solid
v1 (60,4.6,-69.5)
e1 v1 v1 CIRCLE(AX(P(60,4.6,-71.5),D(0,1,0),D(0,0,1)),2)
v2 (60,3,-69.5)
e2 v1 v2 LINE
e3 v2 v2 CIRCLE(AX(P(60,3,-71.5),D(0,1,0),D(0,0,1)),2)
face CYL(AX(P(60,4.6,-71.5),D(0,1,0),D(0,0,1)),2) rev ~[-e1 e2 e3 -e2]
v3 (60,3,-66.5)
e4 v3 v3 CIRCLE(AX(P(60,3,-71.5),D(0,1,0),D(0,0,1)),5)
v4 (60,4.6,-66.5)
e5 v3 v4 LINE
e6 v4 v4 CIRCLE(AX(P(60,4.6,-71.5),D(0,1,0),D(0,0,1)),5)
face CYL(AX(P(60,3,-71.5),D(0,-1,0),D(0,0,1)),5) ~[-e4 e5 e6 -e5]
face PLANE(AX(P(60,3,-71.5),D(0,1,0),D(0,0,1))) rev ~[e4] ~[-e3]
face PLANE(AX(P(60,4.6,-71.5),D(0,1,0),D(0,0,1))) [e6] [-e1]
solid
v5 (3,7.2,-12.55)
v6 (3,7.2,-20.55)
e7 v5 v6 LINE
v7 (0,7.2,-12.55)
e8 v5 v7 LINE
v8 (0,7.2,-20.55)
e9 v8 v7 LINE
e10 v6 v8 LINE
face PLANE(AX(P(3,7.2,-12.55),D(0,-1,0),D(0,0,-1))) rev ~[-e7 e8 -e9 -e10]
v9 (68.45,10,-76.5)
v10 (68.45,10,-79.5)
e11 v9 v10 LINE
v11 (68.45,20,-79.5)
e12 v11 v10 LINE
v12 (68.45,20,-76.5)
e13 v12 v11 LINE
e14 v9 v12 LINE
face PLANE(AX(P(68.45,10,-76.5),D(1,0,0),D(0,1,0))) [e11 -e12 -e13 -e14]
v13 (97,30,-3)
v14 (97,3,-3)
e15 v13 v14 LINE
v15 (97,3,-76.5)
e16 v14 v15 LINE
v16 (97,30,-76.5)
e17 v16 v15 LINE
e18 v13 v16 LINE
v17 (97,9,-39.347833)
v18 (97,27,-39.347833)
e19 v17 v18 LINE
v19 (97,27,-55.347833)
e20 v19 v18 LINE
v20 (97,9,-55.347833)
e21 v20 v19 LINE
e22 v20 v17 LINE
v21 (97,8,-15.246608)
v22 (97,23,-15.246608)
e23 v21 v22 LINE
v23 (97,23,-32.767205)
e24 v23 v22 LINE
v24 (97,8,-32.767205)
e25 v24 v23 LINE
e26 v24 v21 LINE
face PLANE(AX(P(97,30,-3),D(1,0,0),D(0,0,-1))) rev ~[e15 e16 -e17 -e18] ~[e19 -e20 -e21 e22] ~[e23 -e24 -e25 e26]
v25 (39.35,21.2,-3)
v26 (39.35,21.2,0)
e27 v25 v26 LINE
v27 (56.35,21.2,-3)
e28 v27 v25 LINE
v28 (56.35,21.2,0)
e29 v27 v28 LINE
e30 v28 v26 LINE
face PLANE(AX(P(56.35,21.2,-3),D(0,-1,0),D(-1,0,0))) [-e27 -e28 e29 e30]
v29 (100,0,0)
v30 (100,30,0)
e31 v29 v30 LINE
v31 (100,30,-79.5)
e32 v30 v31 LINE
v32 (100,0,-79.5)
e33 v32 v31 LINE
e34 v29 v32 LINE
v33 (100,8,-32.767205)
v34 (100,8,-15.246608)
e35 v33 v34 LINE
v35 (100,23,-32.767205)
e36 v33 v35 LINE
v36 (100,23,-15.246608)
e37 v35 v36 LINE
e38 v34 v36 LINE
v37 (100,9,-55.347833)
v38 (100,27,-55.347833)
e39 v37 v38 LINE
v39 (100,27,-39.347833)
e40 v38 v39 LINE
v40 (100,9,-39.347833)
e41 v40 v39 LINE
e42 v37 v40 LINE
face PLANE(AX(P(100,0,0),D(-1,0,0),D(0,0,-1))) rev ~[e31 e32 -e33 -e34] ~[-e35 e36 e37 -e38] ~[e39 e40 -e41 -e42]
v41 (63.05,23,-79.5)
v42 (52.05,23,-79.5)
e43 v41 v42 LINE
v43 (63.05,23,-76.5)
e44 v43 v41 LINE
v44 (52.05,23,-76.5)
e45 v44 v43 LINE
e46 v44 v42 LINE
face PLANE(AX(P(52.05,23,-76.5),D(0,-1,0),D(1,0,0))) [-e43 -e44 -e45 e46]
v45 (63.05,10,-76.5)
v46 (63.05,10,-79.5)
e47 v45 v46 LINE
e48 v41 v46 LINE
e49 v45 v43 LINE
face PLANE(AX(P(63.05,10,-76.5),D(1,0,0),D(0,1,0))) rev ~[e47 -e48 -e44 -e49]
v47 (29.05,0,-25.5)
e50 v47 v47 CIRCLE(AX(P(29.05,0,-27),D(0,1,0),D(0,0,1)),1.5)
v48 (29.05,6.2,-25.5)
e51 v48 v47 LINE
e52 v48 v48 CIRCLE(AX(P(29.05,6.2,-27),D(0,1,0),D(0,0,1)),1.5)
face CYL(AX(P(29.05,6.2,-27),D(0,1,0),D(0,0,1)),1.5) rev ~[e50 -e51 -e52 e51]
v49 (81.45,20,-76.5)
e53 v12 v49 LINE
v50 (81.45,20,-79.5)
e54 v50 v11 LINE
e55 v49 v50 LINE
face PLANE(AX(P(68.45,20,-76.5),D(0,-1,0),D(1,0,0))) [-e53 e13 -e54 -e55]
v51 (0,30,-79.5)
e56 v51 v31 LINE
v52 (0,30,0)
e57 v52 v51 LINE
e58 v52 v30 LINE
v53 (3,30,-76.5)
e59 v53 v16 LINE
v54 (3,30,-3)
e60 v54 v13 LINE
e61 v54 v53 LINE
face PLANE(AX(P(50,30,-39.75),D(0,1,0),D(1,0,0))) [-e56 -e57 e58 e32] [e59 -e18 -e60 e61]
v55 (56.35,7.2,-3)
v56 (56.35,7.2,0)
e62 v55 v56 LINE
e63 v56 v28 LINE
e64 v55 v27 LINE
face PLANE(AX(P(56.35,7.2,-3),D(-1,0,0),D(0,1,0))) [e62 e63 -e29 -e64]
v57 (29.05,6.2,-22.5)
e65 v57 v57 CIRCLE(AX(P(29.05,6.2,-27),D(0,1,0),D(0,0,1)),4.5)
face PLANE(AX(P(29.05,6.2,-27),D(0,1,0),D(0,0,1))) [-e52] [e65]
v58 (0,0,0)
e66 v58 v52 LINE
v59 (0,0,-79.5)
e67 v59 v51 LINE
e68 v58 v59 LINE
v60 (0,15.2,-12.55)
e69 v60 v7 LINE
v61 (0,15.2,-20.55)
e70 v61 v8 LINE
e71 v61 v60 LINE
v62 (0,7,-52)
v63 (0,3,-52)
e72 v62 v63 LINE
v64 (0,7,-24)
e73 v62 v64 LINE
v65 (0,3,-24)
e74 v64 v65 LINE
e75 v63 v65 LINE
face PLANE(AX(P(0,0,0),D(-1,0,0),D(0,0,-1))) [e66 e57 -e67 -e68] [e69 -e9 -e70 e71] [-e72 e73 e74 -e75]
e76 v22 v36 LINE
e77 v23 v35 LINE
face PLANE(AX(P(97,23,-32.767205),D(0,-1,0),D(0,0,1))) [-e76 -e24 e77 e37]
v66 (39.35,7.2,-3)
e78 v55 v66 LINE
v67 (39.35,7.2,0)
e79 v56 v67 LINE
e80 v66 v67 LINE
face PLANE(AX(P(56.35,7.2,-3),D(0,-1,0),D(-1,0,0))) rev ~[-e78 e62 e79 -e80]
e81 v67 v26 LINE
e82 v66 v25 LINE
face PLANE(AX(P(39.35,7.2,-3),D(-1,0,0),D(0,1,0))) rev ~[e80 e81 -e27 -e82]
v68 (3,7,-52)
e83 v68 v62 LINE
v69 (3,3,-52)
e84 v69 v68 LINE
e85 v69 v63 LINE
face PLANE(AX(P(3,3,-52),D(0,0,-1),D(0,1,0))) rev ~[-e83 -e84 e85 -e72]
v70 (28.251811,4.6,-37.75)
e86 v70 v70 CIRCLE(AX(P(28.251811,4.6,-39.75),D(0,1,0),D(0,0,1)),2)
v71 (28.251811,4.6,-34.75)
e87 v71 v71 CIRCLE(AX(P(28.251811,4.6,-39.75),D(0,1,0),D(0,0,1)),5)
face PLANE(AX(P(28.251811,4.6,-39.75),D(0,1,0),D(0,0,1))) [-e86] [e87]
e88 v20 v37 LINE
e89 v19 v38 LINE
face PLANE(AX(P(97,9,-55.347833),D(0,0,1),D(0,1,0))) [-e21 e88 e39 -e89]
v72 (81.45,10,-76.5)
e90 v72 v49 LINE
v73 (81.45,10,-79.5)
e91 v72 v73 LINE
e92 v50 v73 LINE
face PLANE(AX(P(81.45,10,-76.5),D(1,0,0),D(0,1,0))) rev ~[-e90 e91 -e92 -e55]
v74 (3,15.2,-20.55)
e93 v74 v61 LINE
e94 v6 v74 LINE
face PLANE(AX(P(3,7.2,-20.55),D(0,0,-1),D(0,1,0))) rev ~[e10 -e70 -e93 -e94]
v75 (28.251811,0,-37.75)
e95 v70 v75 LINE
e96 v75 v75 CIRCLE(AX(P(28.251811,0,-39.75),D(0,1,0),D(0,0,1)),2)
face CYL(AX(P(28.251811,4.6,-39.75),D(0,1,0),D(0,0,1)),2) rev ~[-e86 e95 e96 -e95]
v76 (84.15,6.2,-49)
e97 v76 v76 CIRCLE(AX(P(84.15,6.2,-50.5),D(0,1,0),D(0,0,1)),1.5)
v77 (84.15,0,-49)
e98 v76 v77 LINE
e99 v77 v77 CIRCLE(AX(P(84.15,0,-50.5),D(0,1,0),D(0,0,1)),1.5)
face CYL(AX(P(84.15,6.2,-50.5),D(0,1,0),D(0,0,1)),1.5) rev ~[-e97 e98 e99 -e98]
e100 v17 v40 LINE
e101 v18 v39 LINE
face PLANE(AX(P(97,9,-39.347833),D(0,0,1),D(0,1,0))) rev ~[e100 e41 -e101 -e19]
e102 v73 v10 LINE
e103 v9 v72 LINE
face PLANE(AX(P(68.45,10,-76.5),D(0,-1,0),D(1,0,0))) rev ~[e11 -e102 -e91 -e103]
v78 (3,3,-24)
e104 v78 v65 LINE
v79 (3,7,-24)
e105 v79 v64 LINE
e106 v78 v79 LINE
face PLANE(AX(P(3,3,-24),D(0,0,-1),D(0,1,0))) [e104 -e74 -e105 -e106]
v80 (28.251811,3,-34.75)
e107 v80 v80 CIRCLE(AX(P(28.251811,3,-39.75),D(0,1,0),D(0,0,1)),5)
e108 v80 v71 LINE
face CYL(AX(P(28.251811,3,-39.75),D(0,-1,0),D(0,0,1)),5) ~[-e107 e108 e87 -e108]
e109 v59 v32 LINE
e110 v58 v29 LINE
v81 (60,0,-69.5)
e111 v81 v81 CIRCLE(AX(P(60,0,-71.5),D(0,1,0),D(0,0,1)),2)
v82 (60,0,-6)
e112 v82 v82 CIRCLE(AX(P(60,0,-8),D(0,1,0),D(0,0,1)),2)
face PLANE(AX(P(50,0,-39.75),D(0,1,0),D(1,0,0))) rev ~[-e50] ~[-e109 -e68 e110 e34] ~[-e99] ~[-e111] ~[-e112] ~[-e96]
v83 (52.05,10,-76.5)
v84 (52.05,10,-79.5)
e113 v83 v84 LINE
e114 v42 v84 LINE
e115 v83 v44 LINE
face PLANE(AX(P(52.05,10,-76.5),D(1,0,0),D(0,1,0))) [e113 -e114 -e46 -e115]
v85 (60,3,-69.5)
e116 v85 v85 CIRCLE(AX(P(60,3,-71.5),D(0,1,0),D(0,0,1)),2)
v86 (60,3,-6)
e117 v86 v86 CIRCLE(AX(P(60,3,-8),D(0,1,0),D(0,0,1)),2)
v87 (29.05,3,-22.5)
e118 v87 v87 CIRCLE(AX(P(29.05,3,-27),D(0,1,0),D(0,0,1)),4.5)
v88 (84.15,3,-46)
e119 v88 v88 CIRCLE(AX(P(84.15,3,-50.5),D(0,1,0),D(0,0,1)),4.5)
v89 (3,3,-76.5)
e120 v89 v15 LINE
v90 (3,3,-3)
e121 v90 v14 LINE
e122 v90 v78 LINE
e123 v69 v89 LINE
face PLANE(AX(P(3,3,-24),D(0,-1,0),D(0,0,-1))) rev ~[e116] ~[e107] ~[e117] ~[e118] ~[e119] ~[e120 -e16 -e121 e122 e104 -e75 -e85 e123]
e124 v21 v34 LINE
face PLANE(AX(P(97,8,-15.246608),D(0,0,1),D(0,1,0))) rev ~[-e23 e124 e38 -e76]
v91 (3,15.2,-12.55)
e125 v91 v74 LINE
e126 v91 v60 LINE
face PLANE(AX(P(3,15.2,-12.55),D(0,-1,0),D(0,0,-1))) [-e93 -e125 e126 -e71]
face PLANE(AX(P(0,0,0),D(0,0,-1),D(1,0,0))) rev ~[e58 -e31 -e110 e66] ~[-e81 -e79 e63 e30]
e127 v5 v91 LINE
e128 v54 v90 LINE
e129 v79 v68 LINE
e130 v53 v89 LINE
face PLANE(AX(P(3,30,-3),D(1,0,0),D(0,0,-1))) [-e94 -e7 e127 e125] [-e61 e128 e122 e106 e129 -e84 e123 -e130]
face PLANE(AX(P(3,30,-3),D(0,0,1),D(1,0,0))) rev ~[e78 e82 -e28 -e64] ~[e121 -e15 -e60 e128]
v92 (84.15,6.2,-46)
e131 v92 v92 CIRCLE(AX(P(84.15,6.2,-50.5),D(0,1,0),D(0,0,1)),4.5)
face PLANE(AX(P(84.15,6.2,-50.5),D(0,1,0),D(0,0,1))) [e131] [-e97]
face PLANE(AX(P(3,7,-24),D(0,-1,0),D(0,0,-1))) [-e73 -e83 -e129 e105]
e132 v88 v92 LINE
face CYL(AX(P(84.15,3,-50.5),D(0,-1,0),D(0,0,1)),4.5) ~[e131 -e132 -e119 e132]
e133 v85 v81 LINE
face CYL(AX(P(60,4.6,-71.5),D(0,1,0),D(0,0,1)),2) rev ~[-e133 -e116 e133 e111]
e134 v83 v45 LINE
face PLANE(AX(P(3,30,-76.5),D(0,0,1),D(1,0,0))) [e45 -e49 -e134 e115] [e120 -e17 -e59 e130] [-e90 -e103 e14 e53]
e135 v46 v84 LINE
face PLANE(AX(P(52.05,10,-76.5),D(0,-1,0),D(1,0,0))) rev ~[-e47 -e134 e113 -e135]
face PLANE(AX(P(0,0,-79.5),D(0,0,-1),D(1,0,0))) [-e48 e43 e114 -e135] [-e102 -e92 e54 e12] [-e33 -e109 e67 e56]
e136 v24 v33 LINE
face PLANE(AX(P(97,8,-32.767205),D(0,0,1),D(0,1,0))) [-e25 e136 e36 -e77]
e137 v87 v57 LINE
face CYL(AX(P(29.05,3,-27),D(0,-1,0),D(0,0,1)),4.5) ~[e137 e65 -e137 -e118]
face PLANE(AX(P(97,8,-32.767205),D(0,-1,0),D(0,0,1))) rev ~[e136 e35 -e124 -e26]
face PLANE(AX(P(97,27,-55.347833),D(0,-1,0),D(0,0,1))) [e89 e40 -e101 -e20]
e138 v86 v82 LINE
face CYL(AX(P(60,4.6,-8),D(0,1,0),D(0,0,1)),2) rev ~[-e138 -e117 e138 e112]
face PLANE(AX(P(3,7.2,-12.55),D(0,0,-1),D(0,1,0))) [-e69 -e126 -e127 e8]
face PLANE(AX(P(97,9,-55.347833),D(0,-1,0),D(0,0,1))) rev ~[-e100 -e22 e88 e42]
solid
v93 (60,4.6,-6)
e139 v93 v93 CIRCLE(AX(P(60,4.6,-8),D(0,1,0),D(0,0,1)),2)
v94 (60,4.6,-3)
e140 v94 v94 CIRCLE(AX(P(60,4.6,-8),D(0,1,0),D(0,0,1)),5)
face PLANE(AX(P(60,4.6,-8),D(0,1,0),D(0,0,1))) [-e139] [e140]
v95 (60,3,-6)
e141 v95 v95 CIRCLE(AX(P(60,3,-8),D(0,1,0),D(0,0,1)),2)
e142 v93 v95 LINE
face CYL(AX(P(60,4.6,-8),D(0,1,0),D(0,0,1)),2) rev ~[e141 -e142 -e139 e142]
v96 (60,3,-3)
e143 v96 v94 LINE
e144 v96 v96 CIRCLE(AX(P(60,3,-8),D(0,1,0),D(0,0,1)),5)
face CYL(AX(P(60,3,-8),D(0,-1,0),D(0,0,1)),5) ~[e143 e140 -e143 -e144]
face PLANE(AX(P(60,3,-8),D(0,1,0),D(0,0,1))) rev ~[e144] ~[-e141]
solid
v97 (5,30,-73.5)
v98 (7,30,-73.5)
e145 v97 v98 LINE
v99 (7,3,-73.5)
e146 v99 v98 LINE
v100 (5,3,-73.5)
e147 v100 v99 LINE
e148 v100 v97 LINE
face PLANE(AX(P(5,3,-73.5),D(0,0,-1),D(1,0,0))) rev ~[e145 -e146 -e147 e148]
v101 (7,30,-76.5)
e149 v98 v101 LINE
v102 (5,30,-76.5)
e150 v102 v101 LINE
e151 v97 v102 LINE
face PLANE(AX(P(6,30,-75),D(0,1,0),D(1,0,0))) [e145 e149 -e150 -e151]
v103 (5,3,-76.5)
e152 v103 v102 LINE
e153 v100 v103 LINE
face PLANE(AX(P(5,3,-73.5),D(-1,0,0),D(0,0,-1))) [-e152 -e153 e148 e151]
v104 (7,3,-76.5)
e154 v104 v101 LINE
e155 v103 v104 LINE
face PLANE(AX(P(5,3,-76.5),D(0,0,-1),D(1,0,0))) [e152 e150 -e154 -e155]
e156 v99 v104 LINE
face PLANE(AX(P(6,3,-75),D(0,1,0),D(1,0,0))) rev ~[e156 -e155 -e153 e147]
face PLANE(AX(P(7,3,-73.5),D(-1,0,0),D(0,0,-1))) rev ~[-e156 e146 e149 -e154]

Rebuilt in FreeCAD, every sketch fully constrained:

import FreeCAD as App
import Part
import Sketcher
Q = App.Units.Quantity

doc = App.newDocument("Part")
body = doc.addObject("PartDesign::Body", "Body")

# Sketch on XZ plane
sketch1 = body.newObject("Sketcher::SketchObject", "Sketch")
sketch1.AttachmentSupport = (doc.getObject("XZ_Plane"), [""])
sketch1.MapMode = "FlatFace"
sketch1.addGeometry([
    Part.LineSegment(App.Vector(0, -80, 0), App.Vector(0, 0, 0)),
    Part.LineSegment(App.Vector(0, 0, 0), App.Vector(100, 0, 0)),
    Part.LineSegment(App.Vector(100, 0, 0), App.Vector(100, -80, 0)),
    Part.LineSegment(App.Vector(100, -80, 0), App.Vector(0, -80, 0)),
], False)
sketch1.addConstraint([
    Sketcher.Constraint("Coincident", 0, 2, 1, 1),
    Sketcher.Constraint("Coincident", 1, 2, 2, 1),
    Sketcher.Constraint("Coincident", 2, 2, 3, 1),
    Sketcher.Constraint("Coincident", 3, 2, 0, 1),
    Sketcher.Constraint("Vertical", 0),
    Sketcher.Constraint("Horizontal", 1),
    Sketcher.Constraint("Vertical", 2),
    Sketcher.Constraint("Horizontal", 3),
    Sketcher.Constraint("Coincident", 0, 2, -1, 1),
    Sketcher.Constraint("DistanceX", 1, 1, 1, 2, Q("100 mm")),
    Sketcher.Constraint("DistanceY", 0, 1, 0, 2, Q("79.5 mm")),
])
pad1 = body.newObject("PartDesign::Pad", "Pad")
pad1.Profile = sketch1
pad1.Length = 30
pad1.Reversed = True

# Sketch on XZ plane
sketch2 = body.newObject("Sketcher::SketchObject", "Sketch001")
sketch2.AttachmentSupport = (doc.getObject("XZ_Plane"), [""])
sketch2.MapMode = "FlatFace"
sketch2.AttachmentOffset = App.Placement(App.Vector(0, 0, -30), App.Rotation())
sketch2.addGeometry([
    Part.LineSegment(App.Vector(3, -76, 0), App.Vector(3, -3, 0)),
    Part.LineSegment(App.Vector(3, -3, 0), App.Vector(97, -3, 0)),
    Part.LineSegment(App.Vector(97, -3, 0), App.Vector(97, -76, 0)),
    Part.LineSegment(App.Vector(97, -76, 0), App.Vector(3, -76, 0)),
], False)
sketch2.addConstraint([
    Sketcher.Constraint("Coincident", 0, 2, 1, 1),
    Sketcher.Constraint("Coincident", 1, 2, 2, 1),
    Sketcher.Constraint("Coincident", 2, 2, 3, 1),
    Sketcher.Constraint("Coincident", 3, 2, 0, 1),
    Sketcher.Constraint("Vertical", 0),
    Sketcher.Constraint("Horizontal", 1),
    Sketcher.Constraint("Vertical", 2),
    Sketcher.Constraint("Horizontal", 3),
    Sketcher.Constraint("DistanceX", 1, 1, 1, 2, Q("94 mm")),
    Sketcher.Constraint("DistanceY", 0, 1, 0, 2, Q("73.5 mm")),
    Sketcher.Constraint("DistanceX", -1, 1, 0, 2, Q("3 mm")),
    Sketcher.Constraint("DistanceY", 0, 2, -1, 1, Q("3 mm")),
])
pocket1 = body.newObject("PartDesign::Pocket", "Pocket")
pocket1.Profile = sketch2
pocket1.Length = 27
pocket1.Reversed = True
body2 = doc.addObject("PartDesign::Body", "Body001")

# Sketch on XZ plane
sketch3 = body2.newObject("Sketcher::SketchObject", "Sketch002")
sketch3.AttachmentSupport = (doc.getObject("XZ_Plane001"), [""])
sketch3.MapMode = "FlatFace"
sketch3.AttachmentOffset = App.Placement(App.Vector(0, 0, -3), App.Rotation())
sketch3.addGeometry(Part.Circle(App.Vector(60, -8, 0), App.Vector(0, 0, 1), 5), False)
sketch3.addConstraint([
    Sketcher.Constraint("Diameter", 0, Q("10 mm")),
    Sketcher.Constraint("DistanceX", -1, 1, 0, 3, Q("60 mm")),
    Sketcher.Constraint("DistanceY", 0, 3, -1, 1, Q("8 mm")),
])
pad2 = body2.newObject("PartDesign::Pad", "Pad001")
pad2.Profile = sketch3
pad2.Length = 1.6
pad2.Reversed = True
body3 = doc.addObject("PartDesign::Body", "Body002")

# Sketch on XZ plane
sketch4 = body3.newObject("Sketcher::SketchObject", "Sketch003")
sketch4.AttachmentSupport = (doc.getObject("XZ_Plane002"), [""])
sketch4.MapMode = "FlatFace"
sketch4.AttachmentOffset = App.Placement(App.Vector(0, 0, -3), App.Rotation())
sketch4.addGeometry(Part.Circle(App.Vector(60, -72, 0), App.Vector(0, 0, 1), 5), False)
sketch4.addConstraint([
    Sketcher.Constraint("Diameter", 0, Q("10 mm")),
    Sketcher.Constraint("DistanceX", -1, 1, 0, 3, Q("60 mm")),
    Sketcher.Constraint("DistanceY", 0, 3, -1, 1, Q("71.5 mm")),
])
pad3 = body3.newObject("PartDesign::Pad", "Pad002")
pad3.Profile = sketch4
pad3.Length = 1.6
pad3.Reversed = True
body4 = doc.addObject("PartDesign::Body", "Body003")

# Sketch on XZ plane
sketch5 = body4.newObject("Sketcher::SketchObject", "Sketch004")
sketch5.AttachmentSupport = (doc.getObject("XZ_Plane003"), [""])
sketch5.MapMode = "FlatFace"
sketch5.AttachmentOffset = App.Placement(App.Vector(0, 0, -4.6), App.Rotation())
sketch5.addGeometry(Part.Circle(App.Vector(60, -71.5, 0), App.Vector(0, 0, 1), 2), False)
sketch5.addConstraint([
    Sketcher.Constraint("Diameter", 0, Q("4 mm")),
    Sketcher.Constraint("DistanceX", -1, 1, 0, 3, Q("60 mm")),
    Sketcher.Constraint("DistanceY", 0, 3, -1, 1, Q("71.5 mm")),
])
pad4 = body4.newObject("PartDesign::Pad", "Pad003")
pad4.Profile = sketch5
pad4.Length = 131.251334
doc.recompute()

body5 = doc.addObject("PartDesign::Body", "Body004")
body5.BaseFeature = body4
boolean = body.newObject("PartDesign::Boolean", "Boolean")
boolean.Type = "Cut"
boolean.addObjects([body5])
doc.recompute()

boolean2 = body3.newObject("PartDesign::Boolean", "Boolean001")
boolean2.Type = "Cut"
boolean2.addObjects([body4])
body6 = doc.addObject("PartDesign::Body", "Body005")

# Sketch on XZ plane
sketch6 = body6.newObject("Sketcher::SketchObject", "Sketch005")
sketch6.AttachmentSupport = (doc.getObject("XZ_Plane005"), [""])
sketch6.MapMode = "FlatFace"
sketch6.AttachmentOffset = App.Placement(App.Vector(0, 0, -4.6), App.Rotation())
sketch6.addGeometry(Part.Circle(App.Vector(60, -8, 0), App.Vector(0, 0, 1), 2), False)
sketch6.addConstraint([
    Sketcher.Constraint("Diameter", 0, Q("4 mm")),
    Sketcher.Constraint("DistanceX", -1, 1, 0, 3, Q("60 mm")),
    Sketcher.Constraint("DistanceY", 0, 3, -1, 1, Q("8 mm")),
])
pad5 = body6.newObject("PartDesign::Pad", "Pad004")
pad5.Profile = sketch6
pad5.Length = 131.251334
doc.recompute()

body7 = doc.addObject("PartDesign::Body", "Body006")
body7.BaseFeature = body6
boolean3 = body.newObject("PartDesign::Boolean", "Boolean002")
boolean3.Type = "Cut"
boolean3.addObjects([body7])
doc.recompute()

# Sketch on XZ plane
sketch7 = body.newObject("Sketcher::SketchObject", "Sketch006")
sketch7.AttachmentSupport = (doc.getObject("XZ_Plane"), [""])
sketch7.MapMode = "FlatFace"
sketch7.AttachmentOffset = App.Placement(App.Vector(0, 0, -3), App.Rotation())
sketch7.addGeometry([
    Part.Circle(App.Vector(29.1, -27, 0), App.Vector(0, 0, 1), 4.5),
    Part.Circle(App.Vector(84.2, -50.5, 0), App.Vector(0, 0, 1), 4.5),
], False)
sketch7.addConstraint([
    Sketcher.Constraint("Equal", 0, 1),
    Sketcher.Constraint("Diameter", 0, Q("9 mm")),
    Sketcher.Constraint("DistanceY", 0, 3, -1, 1, Q("27 mm")),
    Sketcher.Constraint("DistanceY", 1, 3, -1, 1, Q("50.5 mm")),
    Sketcher.Constraint("DistanceX", 0, 3, 1, 3, Q("55.1 mm")),
    Sketcher.Constraint("DistanceX", -1, 1, 0, 3, Q("29.05 mm")),
])
pad6 = body.newObject("PartDesign::Pad", "Pad005")
pad6.Profile = sketch7
pad6.Length = 3.2
pad6.Reversed = True

# Sketch on XZ plane
sketch8 = body.newObject("Sketcher::SketchObject", "Sketch007")
sketch8.AttachmentSupport = (doc.getObject("XZ_Plane"), [""])
sketch8.MapMode = "FlatFace"
sketch8.AttachmentOffset = App.Placement(App.Vector(0, 0, -6.2), App.Rotation())
sketch8.addGeometry(Part.Circle(App.Vector(29.1, -27, 0), App.Vector(0, 0, 1), 1.5), False)
sketch8.addConstraint([
    Sketcher.Constraint("Diameter", 0, Q("3 mm")),
    Sketcher.Constraint("DistanceY", 0, 3, -1, 1, Q("27 mm")),
    Sketcher.Constraint("DistanceX", -1, 1, 0, 3, Q("29.05 mm")),
])
pocket2 = body.newObject("PartDesign::Pocket", "Pocket001")
pocket2.Profile = sketch8
pocket2.Type = "ThroughAll"
pocket2.Reversed = True

# Sketch on XZ plane
sketch9 = body.newObject("Sketcher::SketchObject", "Sketch008")
sketch9.AttachmentSupport = (doc.getObject("XZ_Plane"), [""])
sketch9.MapMode = "FlatFace"
sketch9.AttachmentOffset = App.Placement(App.Vector(0, 0, -6.2), App.Rotation())
sketch9.addGeometry(Part.Circle(App.Vector(84.2, -50.5, 0), App.Vector(0, 0, 1), 1.5), False)
sketch9.addConstraint([
    Sketcher.Constraint("Diameter", 0, Q("3 mm")),
    Sketcher.Constraint("DistanceY", 0, 3, -1, 1, Q("50.5 mm")),
    Sketcher.Constraint("DistanceX", -1, 1, 0, 3, Q("84.15 mm")),
])
pocket3 = body.newObject("PartDesign::Pocket", "Pocket002")
pocket3.Profile = sketch9
pocket3.Type = "ThroughAll"
pocket3.Reversed = True

# Sketch on YZ plane
sketch10 = body.newObject("Sketcher::SketchObject", "Sketch009")
sketch10.AttachmentSupport = (doc.getObject("YZ_Plane"), [""])
sketch10.MapMode = "FlatFace"
sketch10.AttachmentOffset = App.Placement(App.Vector(0, 0, 3), App.Rotation())
sketch10.addGeometry([
    Part.LineSegment(App.Vector(7, -24, 0), App.Vector(3, -24, 0)),
    Part.LineSegment(App.Vector(3, -24, 0), App.Vector(3, -52, 0)),
    Part.LineSegment(App.Vector(3, -52, 0), App.Vector(7, -52, 0)),
    Part.LineSegment(App.Vector(7, -52, 0), App.Vector(7, -24, 0)),
], False)
sketch10.addConstraint([
    Sketcher.Constraint("Coincident", 0, 2, 1, 1),
    Sketcher.Constraint("Coincident", 1, 2, 2, 1),
    Sketcher.Constraint("Coincident", 2, 2, 3, 1),
    Sketcher.Constraint("Coincident", 3, 2, 0, 1),
    Sketcher.Constraint("Horizontal", 0),
    Sketcher.Constraint("Vertical", 1),
    Sketcher.Constraint("Horizontal", 2),
    Sketcher.Constraint("Vertical", 3),
    Sketcher.Constraint("DistanceX", 0, 2, 0, 1, Q("4 mm")),
    Sketcher.Constraint("DistanceY", 1, 2, 1, 1, Q("28 mm")),
    Sketcher.Constraint("DistanceX", -1, 1, 0, 2, Q("3 mm")),
    Sketcher.Constraint("DistanceY", 0, 2, -1, 1, Q("24 mm")),
])
pocket4 = body.newObject("PartDesign::Pocket", "Pocket003")
pocket4.Profile = sketch10
pocket4.Length = 22.2

# Sketch on YZ plane
sketch11 = body.newObject("Sketcher::SketchObject", "Sketch010")
sketch11.AttachmentSupport = (doc.getObject("YZ_Plane"), [""])
sketch11.MapMode = "FlatFace"
sketch11.AttachmentOffset = App.Placement(App.Vector(0, 0, 3), App.Rotation())
sketch11.addGeometry([
    Part.LineSegment(App.Vector(15, -13, 0), App.Vector(7, -13, 0)),
    Part.LineSegment(App.Vector(7, -13, 0), App.Vector(7, -21, 0)),
    Part.LineSegment(App.Vector(7, -21, 0), App.Vector(15, -21, 0)),
    Part.LineSegment(App.Vector(15, -21, 0), App.Vector(15, -13, 0)),
], False)
sketch11.addConstraint([
    Sketcher.Constraint("Coincident", 0, 2, 1, 1),
    Sketcher.Constraint("Coincident", 1, 2, 2, 1),
    Sketcher.Constraint("Coincident", 2, 2, 3, 1),
    Sketcher.Constraint("Coincident", 3, 2, 0, 1),
    Sketcher.Constraint("Horizontal", 0),
    Sketcher.Constraint("Vertical", 1),
    Sketcher.Constraint("Horizontal", 2),
    Sketcher.Constraint("Vertical", 3),
    Sketcher.Constraint("Equal", 2, 1),
    Sketcher.Constraint("DistanceX", 0, 2, 0, 1, Q("8 mm")),
    Sketcher.Constraint("DistanceX", -1, 1, 0, 2, Q("7.2 mm")),
    Sketcher.Constraint("DistanceY", 0, 2, -1, 1, Q("12.55 mm")),
])
pocket5 = body.newObject("PartDesign::Pocket", "Pocket004")
pocket5.Profile = sketch11
pocket5.Length = 22.2

# Sketch on XY plane
sketch12 = body.newObject("Sketcher::SketchObject", "Sketch011")
sketch12.AttachmentSupport = (doc.getObject("XY_Plane"), [""])
sketch12.MapMode = "FlatFace"
sketch12.AttachmentOffset = App.Placement(App.Vector(0, 0, -3), App.Rotation())
sketch12.addGeometry([
    Part.LineSegment(App.Vector(56, 21, 0), App.Vector(56, 7, 0)),
    Part.LineSegment(App.Vector(56, 7, 0), App.Vector(39, 7, 0)),
    Part.LineSegment(App.Vector(39, 7, 0), App.Vector(39, 21, 0)),
    Part.LineSegment(App.Vector(39, 21, 0), App.Vector(56, 21, 0)),
], False)
sketch12.addConstraint([
    Sketcher.Constraint("Coincident", 0, 2, 1, 1),
    Sketcher.Constraint("Coincident", 1, 2, 2, 1),
    Sketcher.Constraint("Coincident", 2, 2, 3, 1),
    Sketcher.Constraint("Coincident", 3, 2, 0, 1),
    Sketcher.Constraint("Vertical", 0),
    Sketcher.Constraint("Horizontal", 1),
    Sketcher.Constraint("Vertical", 2),
    Sketcher.Constraint("Horizontal", 3),
    Sketcher.Constraint("DistanceX", 1, 2, 1, 1, Q("17 mm")),
    Sketcher.Constraint("DistanceY", 0, 2, 0, 1, Q("14 mm")),
    Sketcher.Constraint("DistanceY", -1, 1, 0, 2, Q("7.2 mm")),
    Sketcher.Constraint("DistanceX", -1, 1, 0, 2, Q("56.35 mm")),
])
pocket6 = body.newObject("PartDesign::Pocket", "Pocket005")
pocket6.Profile = sketch12
pocket6.Length = 22.2
pocket6.Reversed = True

# Sketch on XZ plane
sketch13 = body.newObject("Sketcher::SketchObject", "Sketch012")
sketch13.AttachmentSupport = (doc.getObject("XZ_Plane"), [""])
sketch13.MapMode = "FlatFace"
sketch13.AttachmentOffset = App.Placement(App.Vector(0, 0, -3), App.Rotation())
sketch13.addGeometry(Part.Circle(App.Vector(28, -40, 0), App.Vector(0, 0, 1), 5), False)
sketch13.addConstraint([
    Sketcher.Constraint("Diameter", 0, Q("10 mm")),
    Sketcher.Constraint("DistanceY", 0, 3, -1, 1, Q("39.75 mm")),
    Sketcher.Constraint("DistanceX", -1, 1, 0, 3, Q("28.251811 mm")),
])
pad7 = body.newObject("PartDesign::Pad", "Pad006")
pad7.Profile = sketch13
pad7.Length = 1.6
pad7.Reversed = True

# Sketch on XZ plane
sketch14 = body.newObject("Sketcher::SketchObject", "Sketch013")
sketch14.AttachmentSupport = (doc.getObject("XZ_Plane"), [""])
sketch14.MapMode = "FlatFace"
sketch14.AttachmentOffset = App.Placement(App.Vector(0, 0, -4.6), App.Rotation())
sketch14.addGeometry(Part.Circle(App.Vector(28.3, -39.8, 0), App.Vector(0, 0, 1), 2), False)
sketch14.addConstraint([
    Sketcher.Constraint("Diameter", 0, Q("4 mm")),
    Sketcher.Constraint("DistanceY", 0, 3, -1, 1, Q("39.75 mm")),
    Sketcher.Constraint("DistanceX", -1, 1, 0, 3, Q("28.251811 mm")),
])
pocket7 = body.newObject("PartDesign::Pocket", "Pocket006")
pocket7.Profile = sketch14
pocket7.Type = "ThroughAll"
pocket7.Reversed = True

# Sketch on XY plane
sketch15 = body.newObject("Sketcher::SketchObject", "Sketch014")
sketch15.AttachmentSupport = (doc.getObject("XY_Plane"), [""])
sketch15.MapMode = "FlatFace"
sketch15.AttachmentOffset = App.Placement(App.Vector(0, 0, -76.5), App.Rotation())
sketch15.addGeometry([
    Part.LineSegment(App.Vector(68, 20, 0), App.Vector(68, 10, 0)),  # 0
    Part.LineSegment(App.Vector(68, 10, 0), App.Vector(81, 10, 0)),  # 1
    Part.LineSegment(App.Vector(81, 10, 0), App.Vector(81, 20, 0)),  # 2
    Part.LineSegment(App.Vector(81, 20, 0), App.Vector(68, 20, 0)),  # 3
    Part.LineSegment(App.Vector(52, 23, 0), App.Vector(52, 10, 0)),  # 4
    Part.LineSegment(App.Vector(52, 10, 0), App.Vector(63, 10, 0)),  # 5
    Part.LineSegment(App.Vector(63, 10, 0), App.Vector(63, 23, 0)),  # 6
    Part.LineSegment(App.Vector(63, 23, 0), App.Vector(52, 23, 0)),  # 7
], False)
sketch15.addConstraint([
    Sketcher.Constraint("Coincident", 0, 2, 1, 1),
    Sketcher.Constraint("Coincident", 1, 2, 2, 1),
    Sketcher.Constraint("Coincident", 2, 2, 3, 1),
    Sketcher.Constraint("Coincident", 3, 2, 0, 1),
    Sketcher.Constraint("Coincident", 4, 2, 5, 1),
    Sketcher.Constraint("Coincident", 5, 2, 6, 1),
    Sketcher.Constraint("Coincident", 6, 2, 7, 1),
    Sketcher.Constraint("Coincident", 7, 2, 4, 1),
    Sketcher.Constraint("Vertical", 0),
    Sketcher.Constraint("Horizontal", 1),
    Sketcher.Constraint("Vertical", 2),
    Sketcher.Constraint("Horizontal", 3),
    Sketcher.Constraint("Vertical", 4),
    Sketcher.Constraint("Horizontal", 5),
    Sketcher.Constraint("Vertical", 6),
    Sketcher.Constraint("Horizontal", 7),
    Sketcher.Constraint("Horizontal", 1, 2, 4, 2),
    Sketcher.Constraint("Equal", 3, 4),
    Sketcher.Constraint("DistanceX", 1, 1, 1, 2, Q("13 mm")),
    Sketcher.Constraint("DistanceX", 5, 1, 5, 2, Q("11 mm")),
    Sketcher.Constraint("DistanceY", 0, 2, 0, 1, Q("10 mm")),
    Sketcher.Constraint("DistanceY", -1, 1, 0, 2, Q("10 mm")),
    Sketcher.Constraint("DistanceX", 4, 2, 0, 2, Q("16.4 mm")),
    Sketcher.Constraint("DistanceX", -1, 1, 0, 2, Q("68.45 mm")),
])
pocket8 = body.newObject("PartDesign::Pocket", "Pocket007")
pocket8.Profile = sketch15
pocket8.Type = "ThroughAll"

# Sketch on YZ plane
sketch16 = body.newObject("Sketcher::SketchObject", "Sketch015")
sketch16.AttachmentSupport = (doc.getObject("YZ_Plane"), [""])
sketch16.MapMode = "FlatFace"
sketch16.AttachmentOffset = App.Placement(App.Vector(0, 0, 97), App.Rotation())
sketch16.addGeometry([
    Part.LineSegment(App.Vector(27, -55, 0), App.Vector(9, -55, 0)),  # 0
    Part.LineSegment(App.Vector(9, -55, 0), App.Vector(9, -39, 0)),  # 1
    Part.LineSegment(App.Vector(9, -39, 0), App.Vector(27, -39, 0)),  # 2
    Part.LineSegment(App.Vector(27, -39, 0), App.Vector(27, -55, 0)),  # 3
    Part.LineSegment(App.Vector(23, -33, 0), App.Vector(8, -33, 0)),  # 4
    Part.LineSegment(App.Vector(8, -33, 0), App.Vector(8, -15, 0)),  # 5
    Part.LineSegment(App.Vector(8, -15, 0), App.Vector(23, -15, 0)),  # 6
    Part.LineSegment(App.Vector(23, -15, 0), App.Vector(23, -33, 0)),  # 7
], False)
sketch16.addConstraint([
    Sketcher.Constraint("Coincident", 0, 2, 1, 1),
    Sketcher.Constraint("Coincident", 1, 2, 2, 1),
    Sketcher.Constraint("Coincident", 2, 2, 3, 1),
    Sketcher.Constraint("Coincident", 3, 2, 0, 1),
    Sketcher.Constraint("Coincident", 4, 2, 5, 1),
    Sketcher.Constraint("Coincident", 5, 2, 6, 1),
    Sketcher.Constraint("Coincident", 6, 2, 7, 1),
    Sketcher.Constraint("Coincident", 7, 2, 4, 1),
    Sketcher.Constraint("Horizontal", 0),
    Sketcher.Constraint("Vertical", 1),
    Sketcher.Constraint("Horizontal", 2),
    Sketcher.Constraint("Vertical", 3),
    Sketcher.Constraint("Horizontal", 4),
    Sketcher.Constraint("Vertical", 5),
    Sketcher.Constraint("Horizontal", 6),
    Sketcher.Constraint("Vertical", 7),
    Sketcher.Constraint("DistanceX", 0, 2, 0, 1, Q("18 mm")),
    Sketcher.Constraint("DistanceX", 4, 2, 4, 1, Q("15 mm")),
    Sketcher.Constraint("DistanceY", 1, 1, 1, 2, Q("16 mm")),
    Sketcher.Constraint("DistanceX", -1, 1, 0, 2, Q("9 mm")),
    Sketcher.Constraint("DistanceX", -1, 1, 4, 2, Q("8 mm")),
    Sketcher.Constraint("DistanceY", 5, 1, 5, 2, Q("17.520597 mm")),
    Sketcher.Constraint("DistanceY", 1, 2, 4, 2, Q("6.580628 mm")),
    Sketcher.Constraint("DistanceY", 0, 2, -1, 1, Q("55.347833 mm")),
])
pocket9 = body.newObject("PartDesign::Pocket", "Pocket008")
pocket9.Profile = sketch16
pocket9.Type = "ThroughAll"
pocket9.Reversed = True
doc.recompute()

boolean4 = body2.newObject("PartDesign::Boolean", "Boolean003")
boolean4.Type = "Cut"
boolean4.addObjects([body6])
body8 = doc.addObject("PartDesign::Body", "Body007")

# Sketch on XZ plane
sketch17 = body8.newObject("Sketcher::SketchObject", "Sketch016")
sketch17.AttachmentSupport = (doc.getObject("XZ_Plane007"), [""])
sketch17.MapMode = "FlatFace"
sketch17.AttachmentOffset = App.Placement(App.Vector(0, 0, -3), App.Rotation())
sketch17.addGeometry([
    Part.LineSegment(App.Vector(5, -76.5, 0), App.Vector(5, -73.5, 0)),
    Part.LineSegment(App.Vector(5, -73.5, 0), App.Vector(7, -73.5, 0)),
    Part.LineSegment(App.Vector(7, -73.5, 0), App.Vector(7, -76.5, 0)),
    Part.LineSegment(App.Vector(7, -76.5, 0), App.Vector(5, -76.5, 0)),
], False)
sketch17.addConstraint([
    Sketcher.Constraint("Coincident", 0, 2, 1, 1),
    Sketcher.Constraint("Coincident", 1, 2, 2, 1),
    Sketcher.Constraint("Coincident", 2, 2, 3, 1),
    Sketcher.Constraint("Coincident", 3, 2, 0, 1),
    Sketcher.Constraint("Vertical", 0),
    Sketcher.Constraint("Horizontal", 1),
    Sketcher.Constraint("Vertical", 2),
    Sketcher.Constraint("Horizontal", 3),
    Sketcher.Constraint("DistanceX", 1, 1, 1, 2, Q("2 mm")),
    Sketcher.Constraint("DistanceY", 0, 1, 0, 2, Q("3 mm")),
    Sketcher.Constraint("DistanceX", -1, 1, 0, 2, Q("5 mm")),
    Sketcher.Constraint("DistanceY", 0, 2, -1, 1, Q("73.5 mm")),
])
pad8 = body8.newObject("PartDesign::Pad", "Pad007")
pad8.Profile = sketch17
pad8.Length = 27
pad8.Reversed = True

doc.recompute()
